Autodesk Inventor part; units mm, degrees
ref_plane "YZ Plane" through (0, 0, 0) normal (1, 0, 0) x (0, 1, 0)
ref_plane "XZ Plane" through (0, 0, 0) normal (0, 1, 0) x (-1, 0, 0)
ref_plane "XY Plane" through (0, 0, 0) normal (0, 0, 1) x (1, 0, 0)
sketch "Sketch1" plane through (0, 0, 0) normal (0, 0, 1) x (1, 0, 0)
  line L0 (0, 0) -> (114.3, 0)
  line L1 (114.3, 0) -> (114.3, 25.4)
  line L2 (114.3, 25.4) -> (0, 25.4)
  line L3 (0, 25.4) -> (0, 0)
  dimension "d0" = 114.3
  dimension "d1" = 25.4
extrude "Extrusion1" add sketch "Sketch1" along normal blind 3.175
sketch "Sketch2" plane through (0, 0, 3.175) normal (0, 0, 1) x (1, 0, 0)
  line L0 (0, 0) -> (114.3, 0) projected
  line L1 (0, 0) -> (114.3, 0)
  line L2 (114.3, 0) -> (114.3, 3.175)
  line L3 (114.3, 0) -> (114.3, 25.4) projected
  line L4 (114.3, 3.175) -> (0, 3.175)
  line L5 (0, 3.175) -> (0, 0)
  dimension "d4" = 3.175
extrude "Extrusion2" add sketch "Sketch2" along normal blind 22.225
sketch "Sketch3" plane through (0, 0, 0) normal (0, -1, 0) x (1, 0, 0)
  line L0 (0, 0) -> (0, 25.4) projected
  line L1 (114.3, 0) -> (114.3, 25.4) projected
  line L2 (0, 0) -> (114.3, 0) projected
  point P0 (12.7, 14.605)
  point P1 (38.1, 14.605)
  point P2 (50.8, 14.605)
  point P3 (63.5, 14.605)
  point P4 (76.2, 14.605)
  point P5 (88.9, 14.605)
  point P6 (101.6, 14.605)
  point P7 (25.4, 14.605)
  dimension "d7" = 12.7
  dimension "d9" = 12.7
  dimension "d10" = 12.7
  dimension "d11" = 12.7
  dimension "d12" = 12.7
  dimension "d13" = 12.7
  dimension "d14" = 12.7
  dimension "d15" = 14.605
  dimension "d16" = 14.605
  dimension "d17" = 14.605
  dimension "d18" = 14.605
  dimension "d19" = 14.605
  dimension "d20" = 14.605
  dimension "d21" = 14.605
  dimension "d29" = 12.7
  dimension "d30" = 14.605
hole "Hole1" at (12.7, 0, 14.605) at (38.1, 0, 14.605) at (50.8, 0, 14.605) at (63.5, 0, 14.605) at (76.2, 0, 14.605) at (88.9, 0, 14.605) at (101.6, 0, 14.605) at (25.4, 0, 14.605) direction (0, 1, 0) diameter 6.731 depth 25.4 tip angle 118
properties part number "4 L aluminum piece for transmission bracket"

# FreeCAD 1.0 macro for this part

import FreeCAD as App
import Part
import Sketcher
from FreeCAD import Vector
Q = App.Units.Quantity


def add_polygon(sketch, points):
    """Adds a closed chain of lines whose ends are joined by coincident constraints."""
    first, n = sketch.GeometryCount, len(points)
    for a, b in zip(points, points[1:] + points[:1]):
        sketch.addGeometry(Part.LineSegment(App.Vector(*a, 0), App.Vector(*b, 0)), False)
    for i in range(n):
        sketch.addConstraint(Sketcher.Constraint("Coincident", first + i, 2, first + (i + 1) % n, 1))

doc = App.newDocument("Part")
body = doc.addObject("PartDesign::Body", "Body")

# Sketch on XY plane
sketch1 = body.newObject("Sketcher::SketchObject", "Sketch")
sketch1.AttachmentSupport = (doc.getObject("XY_Plane"), [""])
sketch1.MapMode = "FlatFace"
add_polygon(sketch1, [(0, 25), (0, 0), (114, 0), (114, 25)])  # lines 0-3
sketch1.addConstraint([
    Sketcher.Constraint("Vertical", 0),
    Sketcher.Constraint("Horizontal", 1),
    Sketcher.Constraint("Vertical", 2),
    Sketcher.Constraint("Horizontal", 3),
    Sketcher.Constraint("Coincident", 0, 2, -1, 1),
    Sketcher.Constraint("DistanceY", 0, 2, 0, 1, Q("1 in")),
    Sketcher.Constraint("DistanceX", 1, 1, 1, 2, Q("4.5 in")),
])
pad1 = body.newObject("PartDesign::Pad", "Pad")
pad1.Profile = sketch1
pad1.Length = Q("0.125 in")

# Sketch on XY plane
sketch2 = body.newObject("Sketcher::SketchObject", "Sketch001")
sketch2.AttachmentSupport = (doc.getObject("XY_Plane"), [""])
sketch2.MapMode = "FlatFace"
sketch2.AttachmentOffset = App.Placement(Vector(0, 0, 0.125 * 25.4), App.Rotation())
add_polygon(sketch2, [(0, 3.2), (0, 0), (114.3, 0), (114.3, 3.2)])  # lines 0-3
sketch2.addConstraint([
    Sketcher.Constraint("Vertical", 0),
    Sketcher.Constraint("Horizontal", 1),
    Sketcher.Constraint("Vertical", 2),
    Sketcher.Constraint("Horizontal", 3),
    Sketcher.Constraint("Coincident", 0, 2, -1, 1),
    Sketcher.Constraint("DistanceY", 0, 2, 0, 1, Q("0.125 in")),
    Sketcher.Constraint("DistanceX", 1, 1, 1, 2, Q("4.5 in")),
])
pad2 = body.newObject("PartDesign::Pad", "Pad001")
pad2.Profile = sketch2
pad2.Length = Q("0.875 in")

# Sketch on XZ plane
sketch3 = body.newObject("Sketcher::SketchObject", "Sketch002")
sketch3.AttachmentSupport = (doc.getObject("XZ_Plane"), [""])
sketch3.MapMode = "FlatFace"
sketch3.addGeometry([
    Part.Circle(Vector(12.7, 14.6, 0), Vector(0, 0, 1), 3.4),  # 0
    Part.Circle(Vector(38.1, 14.6, 0), Vector(0, 0, 1), 3.4),  # 1
    Part.Circle(Vector(50.8, 14.6, 0), Vector(0, 0, 1), 3.4),  # 2
    Part.Circle(Vector(63.5, 14.6, 0), Vector(0, 0, 1), 3.4),  # 3
    Part.Circle(Vector(76.2, 14.6, 0), Vector(0, 0, 1), 3.4),  # 4
    Part.Circle(Vector(88.9, 14.6, 0), Vector(0, 0, 1), 3.4),  # 5
    Part.Circle(Vector(101.6, 14.6, 0), Vector(0, 0, 1), 3.4),  # 6
    Part.Circle(Vector(25.4, 14.6, 0), Vector(0, 0, 1), 3.4),  # 7
], False)
sketch3.addConstraint([
    Sketcher.Constraint("Equal", 0, 1),
    Sketcher.Constraint("Equal", 1, 2),
    Sketcher.Constraint("Equal", 2, 3),
    Sketcher.Constraint("Equal", 3, 4),
    Sketcher.Constraint("Equal", 4, 5),
    Sketcher.Constraint("Equal", 5, 6),
    Sketcher.Constraint("Equal", 6, 7),
    Sketcher.Constraint("Horizontal", 0, 3, 1, 3),
    Sketcher.Constraint("Horizontal", 1, 3, 2, 3),
    Sketcher.Constraint("Horizontal", 2, 3, 3, 3),
    Sketcher.Constraint("Horizontal", 3, 3, 4, 3),
    Sketcher.Constraint("Horizontal", 4, 3, 5, 3),
    Sketcher.Constraint("Horizontal", 5, 3, 6, 3),
    Sketcher.Constraint("Horizontal", 6, 3, 7, 3),
    Sketcher.Constraint("Diameter", 0, Q("0.265 in")),
    Sketcher.Constraint("DistanceX", -1, 1, 2, 3, Q("2 in")),
    Sketcher.Constraint("DistanceX", -1, 1, 4, 3, Q("3 in")),
    Sketcher.Constraint("DistanceX", -1, 1, 6, 3, Q("4 in")),
    Sketcher.Constraint("DistanceX", -1, 1, 7, 3, Q("1 in")),
    Sketcher.Constraint("DistanceX", 0, 3, 1, 3, Q("1 in")),
    Sketcher.Constraint("DistanceX", 1, 3, 3, 3, Q("1 in")),
    Sketcher.Constraint("DistanceX", 3, 3, 5, 3, Q("1 in")),
    Sketcher.Constraint("DistanceX", -1, 1, 0, 3, Q("0.5 in")),
    Sketcher.Constraint("DistanceY", -1, 1, 0, 3, Q("0.575 in")),
])
doc.recompute()
hole = body.newObject("PartDesign::Hole", "Hole")
hole.Profile = sketch3
hole.ThreadType = "None"
hole.Diameter = Q("0.265 in")
hole.DepthType = "Dimension"
hole.Depth = Q("1 in")
hole.DrillPoint = "Angled"
hole.DrillPointAngle = 118

doc.recompute()
